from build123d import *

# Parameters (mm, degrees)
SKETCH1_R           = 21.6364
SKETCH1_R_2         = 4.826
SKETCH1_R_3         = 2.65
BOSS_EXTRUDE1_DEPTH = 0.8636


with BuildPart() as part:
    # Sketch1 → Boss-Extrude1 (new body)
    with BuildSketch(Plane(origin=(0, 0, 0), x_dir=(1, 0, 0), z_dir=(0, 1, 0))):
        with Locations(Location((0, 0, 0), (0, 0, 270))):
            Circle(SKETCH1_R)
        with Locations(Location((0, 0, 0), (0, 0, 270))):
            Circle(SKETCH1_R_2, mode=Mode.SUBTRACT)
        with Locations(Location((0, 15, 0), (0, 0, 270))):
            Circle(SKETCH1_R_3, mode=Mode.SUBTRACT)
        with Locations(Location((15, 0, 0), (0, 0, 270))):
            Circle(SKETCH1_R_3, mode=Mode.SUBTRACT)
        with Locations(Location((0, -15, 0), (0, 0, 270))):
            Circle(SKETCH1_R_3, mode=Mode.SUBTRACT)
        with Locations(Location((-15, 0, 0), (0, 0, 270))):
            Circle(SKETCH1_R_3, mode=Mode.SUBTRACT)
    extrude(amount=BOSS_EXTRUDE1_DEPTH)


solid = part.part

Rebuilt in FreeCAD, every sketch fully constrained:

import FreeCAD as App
import Part
import Sketcher
from FreeCAD import Vector
Q = App.Units.Quantity

doc = App.newDocument("Part")
body = doc.addObject("PartDesign::Body", "Body")

sketch1 = body.newObject("Sketcher::SketchObject", "Sketch")
sketch1.AttachmentSupport = (doc.getObject("XZ_Plane"), [""])
sketch1.MapMode = "FlatFace"
sketch1.addGeometry(Part.Circle(Vector(0, 0, 0), Vector(0, 0, 1), 21.6), False)
sketch1.addGeometry(Part.Circle(Vector(0, -15, 0), Vector(0, 0, 1), 2.6), False)
sketch1.addGeometry(Part.Circle(Vector(-15, 0, 0), Vector(0, 0, 1), 2.6), False)
sketch1.addGeometry(Part.Circle(Vector(15, 0, 0), Vector(0, 0, 1), 2.6), False)
sketch1.addGeometry(Part.Circle(Vector(0, 0, 0), Vector(0, 0, 1), 4.8), False)
sketch1.addGeometry(Part.Circle(Vector(0, 15, 0), Vector(0, 0, 1), 2.6), False)
sketch1.addConstraint(Sketcher.Constraint("Coincident", 0, 3, -1, 1))
sketch1.addConstraint(Sketcher.Constraint("Coincident", 4, 3, -1, 1))
sketch1.addConstraint(Sketcher.Constraint("Equal", 1, 2))
sketch1.addConstraint(Sketcher.Constraint("Equal", 2, 3))
sketch1.addConstraint(Sketcher.Constraint("Equal", 3, 5))
sketch1.addConstraint(Sketcher.Constraint("Symmetric", 2, 3, 3, 3, -1, 1))
sketch1.addConstraint(Sketcher.Constraint("Symmetric", 1, 3, 5, 3, -1, 1))
sketch1.addConstraint(Sketcher.Constraint("PointOnObject", 1, 3, -2))
sketch1.addConstraint(Sketcher.Constraint("PointOnObject", 2, 3, -1))
sketch1.addConstraint(Sketcher.Constraint("Diameter", 4, Q("0.38 in")))
sketch1.addConstraint(Sketcher.Constraint("Diameter", 0, Q("43.2728 mm")))
sketch1.addConstraint(Sketcher.Constraint("Diameter", 1, Q("5.3 mm")))
sketch1.addConstraint(Sketcher.Constraint("DistanceY", 1, 3, -1, 1, Q("15 mm")))
sketch1.addConstraint(Sketcher.Constraint("DistanceX", 2, 3, -1, 1, Q("15 mm")))
pad1 = body.newObject("PartDesign::Pad", "Pad")
pad1.Profile = sketch1
pad1.Length = Q("0.034 in")
pad1.Reversed = True

doc.recompute()
